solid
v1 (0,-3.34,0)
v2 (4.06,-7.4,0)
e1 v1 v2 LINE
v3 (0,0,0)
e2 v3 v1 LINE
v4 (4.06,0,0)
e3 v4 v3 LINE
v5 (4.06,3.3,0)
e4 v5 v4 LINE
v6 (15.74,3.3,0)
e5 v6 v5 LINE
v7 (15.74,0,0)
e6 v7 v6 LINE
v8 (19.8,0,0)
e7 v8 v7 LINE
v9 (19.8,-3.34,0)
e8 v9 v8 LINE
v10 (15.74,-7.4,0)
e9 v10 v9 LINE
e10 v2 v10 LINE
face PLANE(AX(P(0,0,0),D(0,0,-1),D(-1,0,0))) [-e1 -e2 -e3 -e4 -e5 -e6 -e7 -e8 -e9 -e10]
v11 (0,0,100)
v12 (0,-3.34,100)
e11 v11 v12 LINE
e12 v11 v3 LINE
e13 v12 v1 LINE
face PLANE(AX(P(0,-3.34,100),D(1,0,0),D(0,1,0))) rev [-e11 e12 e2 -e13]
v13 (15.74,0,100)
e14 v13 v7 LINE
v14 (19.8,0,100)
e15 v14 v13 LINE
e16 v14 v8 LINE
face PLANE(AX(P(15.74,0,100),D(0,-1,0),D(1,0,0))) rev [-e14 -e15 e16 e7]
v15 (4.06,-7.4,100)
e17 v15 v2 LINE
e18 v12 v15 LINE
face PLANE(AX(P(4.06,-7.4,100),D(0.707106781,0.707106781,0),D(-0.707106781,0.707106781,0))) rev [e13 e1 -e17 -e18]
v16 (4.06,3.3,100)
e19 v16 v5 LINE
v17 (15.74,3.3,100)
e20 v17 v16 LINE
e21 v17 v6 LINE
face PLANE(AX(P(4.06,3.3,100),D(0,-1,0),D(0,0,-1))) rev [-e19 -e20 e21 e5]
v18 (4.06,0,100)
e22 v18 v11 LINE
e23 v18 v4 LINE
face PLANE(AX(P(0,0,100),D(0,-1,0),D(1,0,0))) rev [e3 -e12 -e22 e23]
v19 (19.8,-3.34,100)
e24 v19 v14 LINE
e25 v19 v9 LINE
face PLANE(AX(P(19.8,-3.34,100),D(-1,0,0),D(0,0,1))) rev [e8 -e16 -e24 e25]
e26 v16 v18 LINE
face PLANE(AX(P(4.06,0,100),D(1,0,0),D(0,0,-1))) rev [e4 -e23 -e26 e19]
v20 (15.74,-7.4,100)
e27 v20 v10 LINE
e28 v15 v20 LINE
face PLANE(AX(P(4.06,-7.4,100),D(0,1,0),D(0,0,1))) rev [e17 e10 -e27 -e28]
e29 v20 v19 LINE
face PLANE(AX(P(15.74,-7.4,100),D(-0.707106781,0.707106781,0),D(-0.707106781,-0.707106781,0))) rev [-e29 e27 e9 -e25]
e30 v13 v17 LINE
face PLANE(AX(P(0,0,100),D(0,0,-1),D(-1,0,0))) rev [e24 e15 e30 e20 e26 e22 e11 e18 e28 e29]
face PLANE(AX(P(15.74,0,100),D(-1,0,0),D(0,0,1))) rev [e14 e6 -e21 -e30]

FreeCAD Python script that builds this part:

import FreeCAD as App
import Part
import Sketcher

doc = App.newDocument("Part")
body = doc.addObject("PartDesign::Body", "Body")

# Sketch on XY plane
sketch1 = doc.addObject("Sketcher::SketchObject", "Sketch")
body.addObject(sketch1)
sketch1.AttachmentSupport = (doc.XY_Plane, [""])
sketch1.MapMode = "FlatFace"
sketch1.addGeometry(Part.LineSegment(App.Vector(4.06, -7.4, 0), App.Vector(15.74, -7.4, 0)), False)
sketch1.addGeometry(Part.LineSegment(App.Vector(15.74, -7.4, 0), App.Vector(19.8, -3.34, 0)), False)
sketch1.addGeometry(Part.LineSegment(App.Vector(19.8, -3.34, 0), App.Vector(19.8, 0, 0)), False)
sketch1.addGeometry(Part.LineSegment(App.Vector(19.8, 0, 0), App.Vector(15.74, 0, 0)), False)
sketch1.addGeometry(Part.LineSegment(App.Vector(15.74, 0, 0), App.Vector(15.74, 3.3, 0)), False)
sketch1.addGeometry(Part.LineSegment(App.Vector(15.74, 3.3, 0), App.Vector(4.06, 3.3, 0)), False)
sketch1.addGeometry(Part.LineSegment(App.Vector(4.06, 3.3, 0), App.Vector(4.06, 0, 0)), False)
sketch1.addGeometry(Part.LineSegment(App.Vector(4.06, 0, 0), App.Vector(0, 0, 0)), False)
sketch1.addGeometry(Part.LineSegment(App.Vector(0, 0, 0), App.Vector(0, -3.34, 0)), False)
sketch1.addGeometry(Part.LineSegment(App.Vector(0, -3.34, 0), App.Vector(4.06, -7.4, 0)), False)
sketch1.addConstraint(Sketcher.Constraint("Coincident", 0, 2, 1, 1))
sketch1.addConstraint(Sketcher.Constraint("Coincident", 1, 2, 2, 1))
sketch1.addConstraint(Sketcher.Constraint("Coincident", 2, 2, 3, 1))
sketch1.addConstraint(Sketcher.Constraint("Coincident", 3, 2, 4, 1))
sketch1.addConstraint(Sketcher.Constraint("Coincident", 4, 2, 5, 1))
sketch1.addConstraint(Sketcher.Constraint("Coincident", 5, 2, 6, 1))
sketch1.addConstraint(Sketcher.Constraint("Coincident", 6, 2, 7, 1))
sketch1.addConstraint(Sketcher.Constraint("Coincident", 7, 2, 8, 1))
sketch1.addConstraint(Sketcher.Constraint("Coincident", 8, 2, 9, 1))
sketch1.addConstraint(Sketcher.Constraint("Coincident", 9, 2, 0, 1))
sketch1.addConstraint(Sketcher.Constraint("Horizontal", 0))
sketch1.addConstraint(Sketcher.Constraint("Vertical", 2))
sketch1.addConstraint(Sketcher.Constraint("Horizontal", 3))
sketch1.addConstraint(Sketcher.Constraint("Vertical", 4))
sketch1.addConstraint(Sketcher.Constraint("Horizontal", 5))
sketch1.addConstraint(Sketcher.Constraint("Vertical", 6))
sketch1.addConstraint(Sketcher.Constraint("Horizontal", 7))
sketch1.addConstraint(Sketcher.Constraint("Vertical", 8))
sketch1.addConstraint(Sketcher.Constraint("Coincident", 7, 2, -1, 1))
sketch1.addConstraint(Sketcher.Constraint("PointOnObject", 2, 2, -1))
sketch1.addConstraint(Sketcher.Constraint("Perpendicular", 1, 9))
sketch1.addConstraint(Sketcher.Constraint("Horizontal", 1, 2, 8, 2))
sketch1.addConstraint(Sketcher.Constraint("Vertical", 0, 2, 3, 2))
sketch1.addConstraint(Sketcher.Constraint("Vertical", 6, 2, 9, 2))
sketch1.addConstraint(Sketcher.Constraint("Equal", 3, 7))
sketch1.addConstraint(Sketcher.Constraint("DistanceY", 4, 1, 4, 2, 3.3))
sketch1.addConstraint(Sketcher.Constraint("DistanceX", 0, 1, 0, 2, 11.68))
sketch1.addConstraint(Sketcher.Constraint("DistanceX", 3, 2, 3, 1, 4.06))
sketch1.addConstraint(Sketcher.Constraint("DistanceY", 2, 1, 2, 2, 3.34))
pad1 = doc.addObject("PartDesign::Pad", "Pad")
body.addObject(pad1)
pad1.Profile = sketch1
pad1.Length = 100

doc.recompute()
